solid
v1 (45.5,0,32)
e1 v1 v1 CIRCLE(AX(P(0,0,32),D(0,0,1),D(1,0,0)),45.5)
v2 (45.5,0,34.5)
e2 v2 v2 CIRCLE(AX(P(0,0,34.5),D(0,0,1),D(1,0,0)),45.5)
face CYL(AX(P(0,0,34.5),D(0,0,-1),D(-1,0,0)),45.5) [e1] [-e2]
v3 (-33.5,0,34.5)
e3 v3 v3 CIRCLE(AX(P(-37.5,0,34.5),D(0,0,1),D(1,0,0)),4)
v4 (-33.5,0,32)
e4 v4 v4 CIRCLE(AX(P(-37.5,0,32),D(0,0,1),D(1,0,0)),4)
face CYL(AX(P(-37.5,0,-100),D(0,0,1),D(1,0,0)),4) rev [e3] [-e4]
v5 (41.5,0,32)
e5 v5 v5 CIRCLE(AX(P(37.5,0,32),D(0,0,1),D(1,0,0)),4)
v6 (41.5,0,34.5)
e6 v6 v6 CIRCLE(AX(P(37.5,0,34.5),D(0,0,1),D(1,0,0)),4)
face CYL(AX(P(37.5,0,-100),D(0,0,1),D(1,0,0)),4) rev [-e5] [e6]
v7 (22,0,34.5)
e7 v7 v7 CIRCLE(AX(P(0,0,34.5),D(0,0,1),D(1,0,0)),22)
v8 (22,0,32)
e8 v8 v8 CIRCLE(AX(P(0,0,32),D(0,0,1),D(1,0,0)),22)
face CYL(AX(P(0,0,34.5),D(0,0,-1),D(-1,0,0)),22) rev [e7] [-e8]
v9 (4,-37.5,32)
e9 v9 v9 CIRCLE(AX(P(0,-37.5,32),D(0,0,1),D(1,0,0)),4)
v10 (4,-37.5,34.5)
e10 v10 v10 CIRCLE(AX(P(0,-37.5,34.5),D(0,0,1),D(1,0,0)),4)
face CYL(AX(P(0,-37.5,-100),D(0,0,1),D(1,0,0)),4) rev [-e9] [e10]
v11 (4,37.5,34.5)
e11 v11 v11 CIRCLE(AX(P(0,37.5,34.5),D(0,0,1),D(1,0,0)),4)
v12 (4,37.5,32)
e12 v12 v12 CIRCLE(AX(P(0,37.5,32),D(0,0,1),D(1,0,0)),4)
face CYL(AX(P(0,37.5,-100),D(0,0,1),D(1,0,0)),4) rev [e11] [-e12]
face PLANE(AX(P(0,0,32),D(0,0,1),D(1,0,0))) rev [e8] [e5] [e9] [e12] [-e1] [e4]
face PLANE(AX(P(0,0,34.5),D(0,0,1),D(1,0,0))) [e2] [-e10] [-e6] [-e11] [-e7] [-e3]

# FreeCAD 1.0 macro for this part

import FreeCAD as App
import Part
import Sketcher
Q = App.Units.Quantity

doc = App.newDocument("Part")
body = doc.addObject("PartDesign::Body", "Body")

sketch1 = body.newObject("Sketcher::SketchObject", "Sketch")
sketch1.AttachmentSupport = (doc.getObject("XY_Plane"), [""])
sketch1.MapMode = "FlatFace"
sketch1.AttachmentOffset = App.Placement(App.Vector(0, 0, 32), App.Rotation())
sketch1.addGeometry(Part.Circle(App.Vector(0, 0, 0), App.Vector(0, 0, 1), 45.5), False)
sketch1.addGeometry(Part.Circle(App.Vector(0, 0, 0), App.Vector(0, 0, 1), 22), False)
sketch1.addConstraint(Sketcher.Constraint("Coincident", 0, 3, -1, 1))
sketch1.addConstraint(Sketcher.Constraint("Coincident", 1, 3, -1, 1))
sketch1.addConstraint(Sketcher.Constraint("Diameter", 0, Q("91 mm")))
sketch1.addConstraint(Sketcher.Constraint("Diameter", 1, Q("44 mm")))
pad1 = body.newObject("PartDesign::Pad", "Pad")
pad1.Profile = sketch1
pad1.Length = 2.5

sketch2 = body.newObject("Sketcher::SketchObject", "Sketch001")
sketch2.AttachmentSupport = (doc.getObject("XY_Plane"), [""])
sketch2.MapMode = "FlatFace"
sketch2.addGeometry(Part.Circle(App.Vector(37.5, 0, 0), App.Vector(0, 0, 1), 4), False)
sketch2.addGeometry(Part.Circle(App.Vector(0, 37.5, 0), App.Vector(0, 0, 1), 4), False)
sketch2.addGeometry(Part.Circle(App.Vector(-37.5, 0, 0), App.Vector(0, 0, 1), 4), False)
sketch2.addGeometry(Part.Circle(App.Vector(0, -37.5, 0), App.Vector(0, 0, 1), 4), False)
sketch2.addConstraint(Sketcher.Constraint("Equal", 0, 1))
sketch2.addConstraint(Sketcher.Constraint("Equal", 1, 2))
sketch2.addConstraint(Sketcher.Constraint("Equal", 2, 3))
sketch2.addConstraint(Sketcher.Constraint("Symmetric", 0, 3, 2, 3, -1, 1))
sketch2.addConstraint(Sketcher.Constraint("Symmetric", 1, 3, 3, 3, -1, 1))
sketch2.addConstraint(Sketcher.Constraint("PointOnObject", 0, 3, -1))
sketch2.addConstraint(Sketcher.Constraint("PointOnObject", 1, 3, -2))
sketch2.addConstraint(Sketcher.Constraint("Diameter", 0, Q("8 mm")))
sketch2.addConstraint(Sketcher.Constraint("DistanceX", 2, 3, 0, 3, Q("75 mm")))
sketch2.addConstraint(Sketcher.Constraint("DistanceY", 3, 3, 1, 3, Q("75 mm")))
pocket1 = body.newObject("PartDesign::Pocket", "Pocket")
pocket1.Profile = sketch2
pocket1.Length = 200
pocket1.Midplane = True

doc.recompute()
